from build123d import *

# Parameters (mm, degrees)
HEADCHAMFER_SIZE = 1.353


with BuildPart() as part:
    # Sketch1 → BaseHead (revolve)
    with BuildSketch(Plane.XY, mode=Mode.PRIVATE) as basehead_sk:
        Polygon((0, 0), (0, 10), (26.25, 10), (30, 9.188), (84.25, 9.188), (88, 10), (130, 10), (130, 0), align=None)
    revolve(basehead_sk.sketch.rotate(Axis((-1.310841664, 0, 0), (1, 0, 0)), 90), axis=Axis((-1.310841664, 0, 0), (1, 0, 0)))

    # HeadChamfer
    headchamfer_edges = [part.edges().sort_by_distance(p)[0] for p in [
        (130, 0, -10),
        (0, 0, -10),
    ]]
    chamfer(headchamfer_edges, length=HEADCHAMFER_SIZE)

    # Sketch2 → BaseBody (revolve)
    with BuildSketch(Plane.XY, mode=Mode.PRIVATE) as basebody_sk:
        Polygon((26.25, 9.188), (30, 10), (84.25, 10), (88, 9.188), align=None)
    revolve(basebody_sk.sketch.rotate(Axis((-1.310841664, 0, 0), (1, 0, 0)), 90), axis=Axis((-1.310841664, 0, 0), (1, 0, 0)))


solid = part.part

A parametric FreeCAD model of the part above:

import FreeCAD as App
import Part
import Sketcher
Q = App.Units.Quantity


def edges_at(feature, points):
    """Names of the edges that pass closest to the given points."""
    edges = feature.Shape.Edges
    near = lambda p: min(range(len(edges)), key=lambda i: edges[i].distToShape(Part.Vertex(*p))[0])
    return sorted({f"Edge{near(p) + 1}" for p in points})

doc = App.newDocument("Part")
params = doc.addObject("Spreadsheet::Sheet", "Params")
for row, (alias, value) in enumerate([
    ("sketch1_width", "130 mm"),
    ("sketch1_width2", "42 mm"),
    ("sketch1_height", "10 mm"),
    ("sketch1_width3", "54.25 mm"),
    ("revolution_angle", "360 deg"),
    ("chamfer_size", "1.353 mm"),
    ("sketch2_width", "61.75 mm"),
    ("revolution2_angle", "360 deg"),
], start=1):
    params.set(f"A{row}", alias)
    params.set(f"B{row}", "=" + value)
    params.setAlias(f"B{row}", alias)

body = doc.addObject("PartDesign::Body", "Body")

# Sketch on XY plane
sketch1 = body.newObject("Sketcher::SketchObject", "Sketch")
sketch1.AttachmentSupport = (doc.getObject("XY_Plane"), [""])
sketch1.MapMode = "FlatFace"
sketch1.addGeometry(Part.LineSegment(App.Vector(0, 10, 0), App.Vector(0, 0, 0)), False)
sketch1.addGeometry(Part.LineSegment(App.Vector(0, 0, 0), App.Vector(130, 0, 0)), False)
sketch1.addGeometry(Part.LineSegment(App.Vector(130, 0, 0), App.Vector(130, 10, 0)), False)
sketch1.addGeometry(Part.LineSegment(App.Vector(130, 10, 0), App.Vector(88, 10, 0)), False)
sketch1.addGeometry(Part.LineSegment(App.Vector(88, 10, 0), App.Vector(84.2, 9.2, 0)), False)
sketch1.addGeometry(Part.LineSegment(App.Vector(84.2, 9.2, 0), App.Vector(30, 9.2, 0)), False)
sketch1.addGeometry(Part.LineSegment(App.Vector(30, 9.2, 0), App.Vector(26.2, 10, 0)), False)
sketch1.addGeometry(Part.LineSegment(App.Vector(26.2, 10, 0), App.Vector(0, 10, 0)), False)
sketch1.addConstraint(Sketcher.Constraint("Coincident", 0, 2, 1, 1))
sketch1.addConstraint(Sketcher.Constraint("Coincident", 1, 2, 2, 1))
sketch1.addConstraint(Sketcher.Constraint("Coincident", 2, 2, 3, 1))
sketch1.addConstraint(Sketcher.Constraint("Coincident", 3, 2, 4, 1))
sketch1.addConstraint(Sketcher.Constraint("Coincident", 4, 2, 5, 1))
sketch1.addConstraint(Sketcher.Constraint("Coincident", 5, 2, 6, 1))
sketch1.addConstraint(Sketcher.Constraint("Coincident", 6, 2, 7, 1))
sketch1.addConstraint(Sketcher.Constraint("Coincident", 7, 2, 0, 1))
sketch1.addConstraint(Sketcher.Constraint("Vertical", 0))
sketch1.addConstraint(Sketcher.Constraint("Horizontal", 1))
sketch1.addConstraint(Sketcher.Constraint("Vertical", 2))
sketch1.addConstraint(Sketcher.Constraint("Horizontal", 3))
sketch1.addConstraint(Sketcher.Constraint("Horizontal", 5))
sketch1.addConstraint(Sketcher.Constraint("Horizontal", 7))
sketch1.addConstraint(Sketcher.Constraint("Coincident", 0, 2, -1, 1))
sketch1.addConstraint(Sketcher.Constraint("Horizontal", 3, 2, 6, 2))
sketch1.addConstraint(Sketcher.Constraint("Equal", 4, 6))
sketch1.addConstraint(Sketcher.Constraint("DistanceX", 1, 1, 1, 2, Q("130 mm")))
sketch1.addConstraint(Sketcher.Constraint("DistanceX", 3, 2, 3, 1, Q("42 mm")))
sketch1.addConstraint(Sketcher.Constraint("DistanceY", 0, 2, 0, 1, Q("10 mm")))
sketch1.addConstraint(Sketcher.Constraint("DistanceX", -1, 1, 5, 2, Q("30 mm")))
sketch1.addConstraint(Sketcher.Constraint("DistanceX", 5, 2, 5, 1, Q("54.25 mm")))
sketch1.addConstraint(Sketcher.Constraint("DistanceY", -1, 1, 4, 2, Q("9.188 mm")))
sketch1.setExpression("Constraints[17]", "Params.sketch1_width")
sketch1.setExpression("Constraints[18]", "Params.sketch1_width2")
sketch1.setExpression("Constraints[19]", "Params.sketch1_height")
sketch1.setExpression("Constraints[21]", "Params.sketch1_width3")
revolution = body.newObject("PartDesign::Revolution", "Revolution")
revolution.Profile = sketch1
revolution.ReferenceAxis = (sketch1, ["H_Axis"])
revolution.setExpression("Angle", "Params.revolution_angle")
doc.recompute()

chamfer = body.newObject("PartDesign::Chamfer", "Chamfer")
chamfer.Base = (revolution, edges_at(revolution, [(130, 0, -10), (0, 0, -10)]))
chamfer.setExpression("Size", "Params.chamfer_size")

# Sketch on XY plane
sketch2 = body.newObject("Sketcher::SketchObject", "Sketch001")
sketch2.AttachmentSupport = (doc.getObject("XY_Plane"), [""])
sketch2.MapMode = "FlatFace"
sketch2.addGeometry(Part.LineSegment(App.Vector(30, 10, 0), App.Vector(26.2, 9.2, 0)), False)
sketch2.addGeometry(Part.LineSegment(App.Vector(26.2, 9.2, 0), App.Vector(88, 9.2, 0)), False)
sketch2.addGeometry(Part.LineSegment(App.Vector(88, 9.2, 0), App.Vector(84.2, 10, 0)), False)
sketch2.addGeometry(Part.LineSegment(App.Vector(84.2, 10, 0), App.Vector(30, 10, 0)), False)
sketch2.addConstraint(Sketcher.Constraint("Coincident", 0, 2, 1, 1))
sketch2.addConstraint(Sketcher.Constraint("Coincident", 1, 2, 2, 1))
sketch2.addConstraint(Sketcher.Constraint("Coincident", 2, 2, 3, 1))
sketch2.addConstraint(Sketcher.Constraint("Coincident", 3, 2, 0, 1))
sketch2.addConstraint(Sketcher.Constraint("Horizontal", 1))
sketch2.addConstraint(Sketcher.Constraint("Horizontal", 3))
sketch2.addConstraint(Sketcher.Constraint("Equal", 0, 2))
sketch2.addConstraint(Sketcher.Constraint("DistanceX", -1, 1, 1, 2, Q("88 mm")))
sketch2.addConstraint(Sketcher.Constraint("DistanceY", -1, 1, 2, 2, Q("10 mm")))
sketch2.addConstraint(Sketcher.Constraint("DistanceX", -1, 1, 3, 2, Q("30 mm")))
sketch2.addConstraint(Sketcher.Constraint("DistanceX", 1, 1, 1, 2, Q("61.75 mm")))
sketch2.addConstraint(Sketcher.Constraint("DistanceY", -1, 1, 0, 2, Q("9.188 mm")))
sketch2.setExpression("Constraints[10]", "Params.sketch2_width")
revolution2 = body.newObject("PartDesign::Revolution", "Revolution001")
revolution2.Profile = sketch2
revolution2.ReferenceAxis = (sketch2, ["H_Axis"])
revolution2.setExpression("Angle", "Params.revolution2_angle")

doc.recompute()
